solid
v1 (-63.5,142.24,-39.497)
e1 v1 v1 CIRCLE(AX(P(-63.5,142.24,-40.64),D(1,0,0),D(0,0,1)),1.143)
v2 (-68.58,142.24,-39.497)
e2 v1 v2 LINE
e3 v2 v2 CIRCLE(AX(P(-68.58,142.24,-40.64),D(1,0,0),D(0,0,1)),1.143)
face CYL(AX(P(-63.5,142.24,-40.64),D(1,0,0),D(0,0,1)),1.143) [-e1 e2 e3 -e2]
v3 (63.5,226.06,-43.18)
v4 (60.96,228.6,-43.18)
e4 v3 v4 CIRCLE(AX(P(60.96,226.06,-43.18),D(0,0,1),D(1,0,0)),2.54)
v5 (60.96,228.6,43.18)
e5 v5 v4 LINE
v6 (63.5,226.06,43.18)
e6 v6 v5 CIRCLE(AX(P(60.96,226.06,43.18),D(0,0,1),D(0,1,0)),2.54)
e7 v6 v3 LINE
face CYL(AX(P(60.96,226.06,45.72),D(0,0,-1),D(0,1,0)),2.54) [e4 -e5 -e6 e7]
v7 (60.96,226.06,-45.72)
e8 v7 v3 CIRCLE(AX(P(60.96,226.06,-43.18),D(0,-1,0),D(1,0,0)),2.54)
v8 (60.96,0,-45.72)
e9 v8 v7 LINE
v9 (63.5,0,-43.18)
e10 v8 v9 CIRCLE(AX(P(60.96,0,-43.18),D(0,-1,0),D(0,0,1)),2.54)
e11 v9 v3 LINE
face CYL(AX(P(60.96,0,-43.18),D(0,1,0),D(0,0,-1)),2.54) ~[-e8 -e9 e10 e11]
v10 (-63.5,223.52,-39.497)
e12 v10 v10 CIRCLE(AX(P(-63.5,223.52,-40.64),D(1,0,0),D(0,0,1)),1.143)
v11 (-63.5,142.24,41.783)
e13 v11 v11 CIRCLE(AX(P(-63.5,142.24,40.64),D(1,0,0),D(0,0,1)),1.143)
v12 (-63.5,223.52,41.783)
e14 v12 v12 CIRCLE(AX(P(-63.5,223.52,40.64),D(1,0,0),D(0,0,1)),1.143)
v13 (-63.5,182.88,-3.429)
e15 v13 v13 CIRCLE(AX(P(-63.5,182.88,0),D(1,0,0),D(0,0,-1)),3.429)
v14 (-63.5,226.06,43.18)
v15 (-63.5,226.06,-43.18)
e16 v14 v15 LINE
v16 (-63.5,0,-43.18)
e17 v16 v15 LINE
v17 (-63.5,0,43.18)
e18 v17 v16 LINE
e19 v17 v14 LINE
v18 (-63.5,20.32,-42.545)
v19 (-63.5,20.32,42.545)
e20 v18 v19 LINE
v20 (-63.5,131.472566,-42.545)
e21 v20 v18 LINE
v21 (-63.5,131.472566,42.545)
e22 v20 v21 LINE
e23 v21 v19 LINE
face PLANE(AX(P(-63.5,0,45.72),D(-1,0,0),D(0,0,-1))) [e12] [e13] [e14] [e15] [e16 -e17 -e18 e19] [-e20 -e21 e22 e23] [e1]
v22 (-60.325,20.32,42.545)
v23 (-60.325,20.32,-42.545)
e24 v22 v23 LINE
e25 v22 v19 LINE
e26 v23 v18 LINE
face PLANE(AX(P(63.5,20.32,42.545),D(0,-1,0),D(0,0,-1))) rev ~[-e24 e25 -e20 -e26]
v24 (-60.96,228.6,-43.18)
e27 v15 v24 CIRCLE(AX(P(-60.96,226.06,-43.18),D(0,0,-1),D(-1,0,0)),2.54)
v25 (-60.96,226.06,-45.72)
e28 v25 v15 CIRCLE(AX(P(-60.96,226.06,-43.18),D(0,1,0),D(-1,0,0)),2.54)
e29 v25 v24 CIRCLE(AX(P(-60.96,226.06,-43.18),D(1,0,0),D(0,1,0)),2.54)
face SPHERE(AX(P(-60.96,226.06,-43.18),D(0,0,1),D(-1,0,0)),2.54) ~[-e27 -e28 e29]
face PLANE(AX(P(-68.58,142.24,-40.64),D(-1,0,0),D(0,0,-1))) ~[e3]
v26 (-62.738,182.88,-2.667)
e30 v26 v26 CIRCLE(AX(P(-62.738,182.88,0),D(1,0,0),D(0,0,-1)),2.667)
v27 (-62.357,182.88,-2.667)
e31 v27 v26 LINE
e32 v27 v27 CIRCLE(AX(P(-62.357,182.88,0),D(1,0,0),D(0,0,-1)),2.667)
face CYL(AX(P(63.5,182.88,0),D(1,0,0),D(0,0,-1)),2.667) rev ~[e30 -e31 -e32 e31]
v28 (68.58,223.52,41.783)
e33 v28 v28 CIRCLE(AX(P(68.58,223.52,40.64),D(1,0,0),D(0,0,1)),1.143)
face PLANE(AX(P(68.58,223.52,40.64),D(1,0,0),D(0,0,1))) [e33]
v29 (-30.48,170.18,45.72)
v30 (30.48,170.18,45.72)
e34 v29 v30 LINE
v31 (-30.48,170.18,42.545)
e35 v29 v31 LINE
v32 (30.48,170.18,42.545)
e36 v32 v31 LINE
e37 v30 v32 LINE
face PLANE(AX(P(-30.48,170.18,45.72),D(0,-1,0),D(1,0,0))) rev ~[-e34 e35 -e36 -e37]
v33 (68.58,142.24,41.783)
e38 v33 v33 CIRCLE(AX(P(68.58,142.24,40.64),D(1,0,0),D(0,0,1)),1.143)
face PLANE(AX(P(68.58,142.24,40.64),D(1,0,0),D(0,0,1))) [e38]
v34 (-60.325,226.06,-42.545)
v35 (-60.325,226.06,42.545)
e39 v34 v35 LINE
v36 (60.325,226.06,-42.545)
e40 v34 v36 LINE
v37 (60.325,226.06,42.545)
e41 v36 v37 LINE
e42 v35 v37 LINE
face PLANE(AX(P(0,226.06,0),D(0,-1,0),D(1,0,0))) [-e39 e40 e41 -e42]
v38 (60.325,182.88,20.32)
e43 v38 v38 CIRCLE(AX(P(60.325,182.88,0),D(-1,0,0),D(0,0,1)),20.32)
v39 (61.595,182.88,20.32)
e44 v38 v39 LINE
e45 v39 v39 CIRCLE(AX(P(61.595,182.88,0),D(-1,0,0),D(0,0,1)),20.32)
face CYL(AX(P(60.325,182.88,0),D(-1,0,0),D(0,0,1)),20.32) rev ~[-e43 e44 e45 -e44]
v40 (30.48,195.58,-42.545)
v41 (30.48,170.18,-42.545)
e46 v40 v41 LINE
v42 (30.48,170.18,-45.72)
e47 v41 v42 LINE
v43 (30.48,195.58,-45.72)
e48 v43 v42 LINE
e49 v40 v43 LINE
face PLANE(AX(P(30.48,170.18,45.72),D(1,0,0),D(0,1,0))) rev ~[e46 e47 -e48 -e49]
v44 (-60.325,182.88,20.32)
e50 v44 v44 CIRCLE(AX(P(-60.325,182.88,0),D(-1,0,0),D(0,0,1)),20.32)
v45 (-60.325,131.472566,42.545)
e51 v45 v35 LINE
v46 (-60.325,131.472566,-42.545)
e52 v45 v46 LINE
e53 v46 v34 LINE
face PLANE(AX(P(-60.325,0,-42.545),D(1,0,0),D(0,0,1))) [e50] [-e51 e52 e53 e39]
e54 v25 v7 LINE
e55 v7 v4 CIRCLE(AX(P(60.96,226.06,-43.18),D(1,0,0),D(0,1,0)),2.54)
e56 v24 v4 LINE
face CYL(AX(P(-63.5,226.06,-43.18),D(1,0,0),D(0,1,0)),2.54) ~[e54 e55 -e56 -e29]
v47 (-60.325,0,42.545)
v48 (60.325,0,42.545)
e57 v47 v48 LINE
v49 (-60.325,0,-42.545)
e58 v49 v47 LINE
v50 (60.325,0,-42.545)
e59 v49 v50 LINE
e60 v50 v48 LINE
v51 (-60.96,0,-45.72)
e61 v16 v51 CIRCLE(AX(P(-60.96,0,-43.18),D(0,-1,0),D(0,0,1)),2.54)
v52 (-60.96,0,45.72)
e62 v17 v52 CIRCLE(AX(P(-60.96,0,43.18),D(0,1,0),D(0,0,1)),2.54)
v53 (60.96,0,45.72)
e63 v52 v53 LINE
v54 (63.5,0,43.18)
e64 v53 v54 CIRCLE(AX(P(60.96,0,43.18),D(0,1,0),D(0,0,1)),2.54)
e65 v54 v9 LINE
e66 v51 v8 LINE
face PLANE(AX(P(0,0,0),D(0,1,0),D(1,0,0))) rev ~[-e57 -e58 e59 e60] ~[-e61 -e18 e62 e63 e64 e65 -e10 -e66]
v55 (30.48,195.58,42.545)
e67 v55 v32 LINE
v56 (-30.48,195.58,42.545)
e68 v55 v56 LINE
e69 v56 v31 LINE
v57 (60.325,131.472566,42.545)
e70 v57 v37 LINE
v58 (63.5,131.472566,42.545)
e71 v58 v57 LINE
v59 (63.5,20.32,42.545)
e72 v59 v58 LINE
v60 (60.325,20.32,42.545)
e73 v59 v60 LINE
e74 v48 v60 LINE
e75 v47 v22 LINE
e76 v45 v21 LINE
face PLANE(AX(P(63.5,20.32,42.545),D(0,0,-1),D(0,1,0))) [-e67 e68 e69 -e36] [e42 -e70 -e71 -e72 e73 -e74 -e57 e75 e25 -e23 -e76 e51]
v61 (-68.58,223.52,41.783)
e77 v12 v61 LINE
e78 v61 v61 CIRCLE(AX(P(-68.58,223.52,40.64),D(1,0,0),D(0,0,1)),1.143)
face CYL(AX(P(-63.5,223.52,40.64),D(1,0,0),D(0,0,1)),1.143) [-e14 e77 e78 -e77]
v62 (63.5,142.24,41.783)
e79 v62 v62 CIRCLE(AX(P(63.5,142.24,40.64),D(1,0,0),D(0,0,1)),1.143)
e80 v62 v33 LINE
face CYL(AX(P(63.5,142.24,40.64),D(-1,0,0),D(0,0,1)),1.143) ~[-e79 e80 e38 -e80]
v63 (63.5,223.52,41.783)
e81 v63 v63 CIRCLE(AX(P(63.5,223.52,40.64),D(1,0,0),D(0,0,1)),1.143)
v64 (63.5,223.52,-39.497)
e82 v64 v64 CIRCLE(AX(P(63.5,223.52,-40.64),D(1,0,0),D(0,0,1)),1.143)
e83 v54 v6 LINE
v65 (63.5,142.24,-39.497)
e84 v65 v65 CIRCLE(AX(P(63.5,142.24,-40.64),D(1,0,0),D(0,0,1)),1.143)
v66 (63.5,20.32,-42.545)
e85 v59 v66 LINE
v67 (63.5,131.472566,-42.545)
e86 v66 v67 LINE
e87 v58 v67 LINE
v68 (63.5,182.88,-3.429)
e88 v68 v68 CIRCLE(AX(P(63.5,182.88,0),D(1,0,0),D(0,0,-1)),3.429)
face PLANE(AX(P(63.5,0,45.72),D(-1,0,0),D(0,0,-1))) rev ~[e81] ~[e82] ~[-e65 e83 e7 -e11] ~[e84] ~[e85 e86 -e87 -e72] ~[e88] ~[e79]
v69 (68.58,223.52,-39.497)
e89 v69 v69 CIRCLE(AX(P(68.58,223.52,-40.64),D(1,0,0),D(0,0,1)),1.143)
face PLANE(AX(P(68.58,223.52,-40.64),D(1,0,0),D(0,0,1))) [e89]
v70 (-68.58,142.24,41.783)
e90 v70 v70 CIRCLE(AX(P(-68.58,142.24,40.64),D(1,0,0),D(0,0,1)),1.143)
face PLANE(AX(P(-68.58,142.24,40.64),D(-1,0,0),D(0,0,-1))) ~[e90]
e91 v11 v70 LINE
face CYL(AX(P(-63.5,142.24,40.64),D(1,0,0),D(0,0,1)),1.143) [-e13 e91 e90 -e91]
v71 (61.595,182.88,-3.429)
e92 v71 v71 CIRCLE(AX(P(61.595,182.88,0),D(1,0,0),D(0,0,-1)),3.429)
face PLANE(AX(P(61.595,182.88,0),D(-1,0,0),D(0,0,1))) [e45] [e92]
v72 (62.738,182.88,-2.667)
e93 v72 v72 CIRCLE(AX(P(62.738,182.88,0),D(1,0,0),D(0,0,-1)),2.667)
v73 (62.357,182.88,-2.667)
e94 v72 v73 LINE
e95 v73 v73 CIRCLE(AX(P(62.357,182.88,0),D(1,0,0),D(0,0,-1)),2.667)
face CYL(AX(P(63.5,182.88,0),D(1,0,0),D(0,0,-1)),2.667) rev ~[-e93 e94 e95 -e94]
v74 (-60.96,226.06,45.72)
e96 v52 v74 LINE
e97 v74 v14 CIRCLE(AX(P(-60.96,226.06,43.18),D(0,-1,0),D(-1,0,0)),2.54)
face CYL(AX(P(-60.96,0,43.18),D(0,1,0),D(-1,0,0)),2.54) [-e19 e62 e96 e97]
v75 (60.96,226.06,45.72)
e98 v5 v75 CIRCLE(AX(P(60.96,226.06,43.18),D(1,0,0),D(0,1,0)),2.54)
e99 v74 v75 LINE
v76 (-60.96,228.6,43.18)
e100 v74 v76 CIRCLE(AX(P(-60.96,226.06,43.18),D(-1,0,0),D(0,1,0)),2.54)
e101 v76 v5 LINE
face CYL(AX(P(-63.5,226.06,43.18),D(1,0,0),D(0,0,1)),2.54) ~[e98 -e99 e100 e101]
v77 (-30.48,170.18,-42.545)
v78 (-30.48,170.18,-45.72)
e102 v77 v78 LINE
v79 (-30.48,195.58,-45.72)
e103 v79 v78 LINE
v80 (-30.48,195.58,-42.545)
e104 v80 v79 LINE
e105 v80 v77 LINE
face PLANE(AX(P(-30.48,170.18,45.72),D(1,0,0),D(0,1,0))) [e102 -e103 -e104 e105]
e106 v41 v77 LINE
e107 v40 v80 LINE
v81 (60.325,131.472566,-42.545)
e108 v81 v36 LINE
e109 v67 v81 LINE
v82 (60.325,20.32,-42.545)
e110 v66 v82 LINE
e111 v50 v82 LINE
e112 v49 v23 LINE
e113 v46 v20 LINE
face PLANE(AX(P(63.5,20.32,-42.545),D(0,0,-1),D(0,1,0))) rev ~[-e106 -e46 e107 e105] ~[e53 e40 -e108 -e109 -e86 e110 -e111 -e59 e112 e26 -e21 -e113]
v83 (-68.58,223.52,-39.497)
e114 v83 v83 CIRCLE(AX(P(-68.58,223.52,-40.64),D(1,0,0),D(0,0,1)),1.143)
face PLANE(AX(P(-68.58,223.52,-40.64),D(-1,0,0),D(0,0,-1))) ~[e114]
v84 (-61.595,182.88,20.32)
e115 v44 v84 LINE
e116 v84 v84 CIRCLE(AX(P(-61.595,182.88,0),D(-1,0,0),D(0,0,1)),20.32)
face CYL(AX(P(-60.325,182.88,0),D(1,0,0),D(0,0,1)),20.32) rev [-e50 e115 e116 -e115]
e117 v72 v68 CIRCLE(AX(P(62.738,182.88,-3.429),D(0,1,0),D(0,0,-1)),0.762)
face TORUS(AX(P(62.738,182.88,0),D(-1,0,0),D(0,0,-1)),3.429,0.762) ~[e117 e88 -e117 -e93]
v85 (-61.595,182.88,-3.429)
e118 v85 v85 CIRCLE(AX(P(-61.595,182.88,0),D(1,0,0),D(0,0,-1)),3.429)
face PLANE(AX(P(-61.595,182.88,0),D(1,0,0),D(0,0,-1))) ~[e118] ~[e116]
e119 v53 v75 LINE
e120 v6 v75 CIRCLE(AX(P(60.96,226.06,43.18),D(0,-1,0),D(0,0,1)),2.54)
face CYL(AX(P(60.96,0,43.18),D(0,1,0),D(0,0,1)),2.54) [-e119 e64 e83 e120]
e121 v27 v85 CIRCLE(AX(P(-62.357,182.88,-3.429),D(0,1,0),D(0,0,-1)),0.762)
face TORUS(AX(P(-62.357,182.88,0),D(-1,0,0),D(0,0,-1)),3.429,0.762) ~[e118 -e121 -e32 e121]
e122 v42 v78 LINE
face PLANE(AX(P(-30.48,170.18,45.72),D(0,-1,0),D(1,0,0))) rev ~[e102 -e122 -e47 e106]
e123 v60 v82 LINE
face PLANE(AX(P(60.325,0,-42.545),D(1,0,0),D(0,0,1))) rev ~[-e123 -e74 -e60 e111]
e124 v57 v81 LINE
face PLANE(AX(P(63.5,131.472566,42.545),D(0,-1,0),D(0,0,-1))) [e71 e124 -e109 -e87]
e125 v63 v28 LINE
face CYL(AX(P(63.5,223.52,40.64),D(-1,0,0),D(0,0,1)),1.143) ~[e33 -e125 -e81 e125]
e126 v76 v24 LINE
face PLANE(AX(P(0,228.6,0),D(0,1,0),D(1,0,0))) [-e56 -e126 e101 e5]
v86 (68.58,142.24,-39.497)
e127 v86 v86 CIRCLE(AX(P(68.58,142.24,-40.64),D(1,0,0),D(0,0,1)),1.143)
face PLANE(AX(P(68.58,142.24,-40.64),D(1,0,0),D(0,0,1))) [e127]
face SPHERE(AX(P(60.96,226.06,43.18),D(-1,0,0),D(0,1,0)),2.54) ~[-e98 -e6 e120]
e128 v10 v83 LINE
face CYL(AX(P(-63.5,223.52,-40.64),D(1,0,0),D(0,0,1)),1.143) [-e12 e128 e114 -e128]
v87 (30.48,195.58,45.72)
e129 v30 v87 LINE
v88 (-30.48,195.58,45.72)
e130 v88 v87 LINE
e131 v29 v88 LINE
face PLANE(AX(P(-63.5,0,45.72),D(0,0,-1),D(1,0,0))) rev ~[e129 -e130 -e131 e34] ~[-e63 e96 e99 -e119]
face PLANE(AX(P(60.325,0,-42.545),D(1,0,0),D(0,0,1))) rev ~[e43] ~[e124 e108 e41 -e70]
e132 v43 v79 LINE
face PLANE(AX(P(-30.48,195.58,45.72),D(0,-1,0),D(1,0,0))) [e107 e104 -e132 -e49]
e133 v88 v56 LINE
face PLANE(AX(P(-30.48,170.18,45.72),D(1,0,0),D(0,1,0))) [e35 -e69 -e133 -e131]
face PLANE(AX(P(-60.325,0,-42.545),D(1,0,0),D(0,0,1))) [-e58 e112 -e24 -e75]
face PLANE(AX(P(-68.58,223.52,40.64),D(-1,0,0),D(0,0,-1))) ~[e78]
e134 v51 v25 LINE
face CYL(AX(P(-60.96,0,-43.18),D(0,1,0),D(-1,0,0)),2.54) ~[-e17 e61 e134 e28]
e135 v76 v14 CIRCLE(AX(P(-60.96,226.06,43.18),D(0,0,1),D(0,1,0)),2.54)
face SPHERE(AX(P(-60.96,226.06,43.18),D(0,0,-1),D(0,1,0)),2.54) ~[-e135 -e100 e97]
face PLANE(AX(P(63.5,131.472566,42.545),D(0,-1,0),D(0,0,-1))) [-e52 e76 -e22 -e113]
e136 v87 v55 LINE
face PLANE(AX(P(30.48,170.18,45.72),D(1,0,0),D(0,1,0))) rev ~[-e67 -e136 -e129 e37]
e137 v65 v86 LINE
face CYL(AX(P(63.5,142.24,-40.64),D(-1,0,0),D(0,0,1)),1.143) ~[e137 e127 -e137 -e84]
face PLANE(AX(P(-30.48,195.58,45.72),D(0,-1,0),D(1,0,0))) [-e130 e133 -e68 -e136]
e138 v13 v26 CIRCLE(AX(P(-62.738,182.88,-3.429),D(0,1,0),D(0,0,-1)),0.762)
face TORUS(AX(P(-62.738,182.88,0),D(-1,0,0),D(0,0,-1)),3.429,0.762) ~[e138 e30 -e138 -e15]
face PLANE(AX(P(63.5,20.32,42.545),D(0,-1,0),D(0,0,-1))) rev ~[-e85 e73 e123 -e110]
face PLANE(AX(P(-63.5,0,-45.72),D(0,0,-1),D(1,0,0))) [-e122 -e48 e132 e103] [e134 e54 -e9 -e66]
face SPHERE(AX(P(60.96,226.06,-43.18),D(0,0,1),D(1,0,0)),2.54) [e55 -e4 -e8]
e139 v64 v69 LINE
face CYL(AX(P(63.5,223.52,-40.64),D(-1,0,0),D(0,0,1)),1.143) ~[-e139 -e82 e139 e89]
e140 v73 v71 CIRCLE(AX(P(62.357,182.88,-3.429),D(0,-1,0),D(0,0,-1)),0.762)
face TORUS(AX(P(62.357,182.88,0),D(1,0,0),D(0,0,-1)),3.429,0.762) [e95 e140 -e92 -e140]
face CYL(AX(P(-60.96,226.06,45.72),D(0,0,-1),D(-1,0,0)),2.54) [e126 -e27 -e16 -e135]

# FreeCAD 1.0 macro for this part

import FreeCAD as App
import Part
import Sketcher
from FreeCAD import Vector
Q = App.Units.Quantity


def edges_at(feature, points):
    """Names of the edges that pass closest to the given points."""
    edges = feature.Shape.Edges
    near = lambda p: min(range(len(edges)), key=lambda i: edges[i].distToShape(Part.Vertex(*p))[0])
    return sorted({f"Edge{near(p) + 1}" for p in points})

doc = App.newDocument("Part")
body = doc.addObject("PartDesign::Body", "Body")

sketch1 = doc.addObject("Sketcher::SketchObject", "Sketch")
body.addObject(sketch1)
sketch1.AttachmentSupport = (doc.XZ_Plane, [""])
sketch1.MapMode = "FlatFace"
sketch1.addGeometry([
    Part.LineSegment(Vector(-64, -46, 0), Vector(-64, 46, 0)),
    Part.LineSegment(Vector(-64, 46, 0), Vector(64, 46, 0)),
    Part.LineSegment(Vector(64, 46, 0), Vector(64, -46, 0)),
    Part.LineSegment(Vector(64, -46, 0), Vector(-64, -46, 0)),
], False)
sketch1.addConstraint([
    Sketcher.Constraint("Coincident", 0, 2, 1, 1),
    Sketcher.Constraint("Coincident", 1, 2, 2, 1),
    Sketcher.Constraint("Coincident", 2, 2, 3, 1),
    Sketcher.Constraint("Coincident", 3, 2, 0, 1),
    Sketcher.Constraint("Vertical", 0),
    Sketcher.Constraint("Horizontal", 1),
    Sketcher.Constraint("Vertical", 2),
    Sketcher.Constraint("Horizontal", 3),
    Sketcher.Constraint("Symmetric", 0, 2, 2, 2, -1, 1),
    Sketcher.Constraint("DistanceX", 1, 1, 1, 2, Q("5 in")),
    Sketcher.Constraint("DistanceY", 0, 1, 0, 2, Q("3.6 in")),
])
pad1 = doc.addObject("PartDesign::Pad", "Pad")
body.addObject(pad1)
pad1.Profile = sketch1
pad1.Length = Q("9 in")
pad1.Reversed = True

sketch2 = doc.addObject("Sketcher::SketchObject", "Sketch001")
body.addObject(sketch2)
sketch2.AttachmentSupport = (doc.XZ_Plane, [""])
sketch2.MapMode = "FlatFace"
sketch2.addGeometry([
    Part.LineSegment(Vector(-60, 43, 0), Vector(-60, -43, 0)),
    Part.LineSegment(Vector(-60, -43, 0), Vector(60, -43, 0)),
    Part.LineSegment(Vector(60, -43, 0), Vector(60, 43, 0)),
    Part.LineSegment(Vector(60, 43, 0), Vector(-60, 43, 0)),
], False)
sketch2.addConstraint([
    Sketcher.Constraint("Coincident", 0, 2, 1, 1),
    Sketcher.Constraint("Coincident", 1, 2, 2, 1),
    Sketcher.Constraint("Coincident", 2, 2, 3, 1),
    Sketcher.Constraint("Coincident", 3, 2, 0, 1),
    Sketcher.Constraint("Vertical", 0),
    Sketcher.Constraint("Horizontal", 1),
    Sketcher.Constraint("Vertical", 2),
    Sketcher.Constraint("Horizontal", 3),
    Sketcher.Constraint("Symmetric", 0, 2, 2, 2, -1, 1),
    Sketcher.Constraint("DistanceX", 1, 1, 1, 2, Q("4.75 in")),
    Sketcher.Constraint("DistanceY", 0, 2, 0, 1, Q("3.35 in")),
])
pocket1 = doc.addObject("PartDesign::Pocket", "Pocket")
body.addObject(pocket1)
pocket1.Profile = sketch2
pocket1.Length = Q("8.9 in")

sketch3 = doc.addObject("Sketcher::SketchObject", "Sketch002")
body.addObject(sketch3)
sketch3.AttachmentSupport = (doc.YZ_Plane, [""])
sketch3.MapMode = "FlatFace"
sketch3.AttachmentOffset = App.Placement(Vector(0, 0, 2.5 * 25.4), App.Rotation())
sketch3.addGeometry(Part.Circle(Vector(182.9, 0, 0), Vector(0, 0, 1), 2.7), False)
sketch3.addConstraint([
    Sketcher.Constraint("PointOnObject", 0, 3, -1),
    Sketcher.Constraint("Diameter", 0, Q("0.21 in")),
    Sketcher.Constraint("DistanceX", -1, 1, 0, 3, Q("7.2 in")),
])
pocket2 = doc.addObject("PartDesign::Pocket", "Pocket001")
body.addObject(pocket2)
pocket2.Profile = sketch3
pocket2.Type = "ThroughAll"

sketch4 = doc.addObject("Sketcher::SketchObject", "Sketch003")
body.addObject(sketch4)
sketch4.AttachmentSupport = (doc.YZ_Plane, [""])
sketch4.MapMode = "FlatFace"
sketch4.AttachmentOffset = App.Placement(Vector(0, 0, 2.5 * 25.4), App.Rotation())
sketch4.addGeometry([
    Part.Circle(Vector(223.5, 40.6, 0), Vector(0, 0, 1), 1.1),
    Part.Circle(Vector(223.5, -40.6, 0), Vector(0, 0, 1), 1.1),
    Part.Circle(Vector(142.2, -40.6, 0), Vector(0, 0, 1), 1.1),
    Part.Circle(Vector(142.2, 40.6, 0), Vector(0, 0, 1), 1.1),
], False)
sketch4.addConstraint([
    Sketcher.Constraint("Equal", 0, 1),
    Sketcher.Constraint("Equal", 1, 2),
    Sketcher.Constraint("Equal", 2, 3),
    Sketcher.Constraint("Symmetric", 0, 3, 1, 3, -1),
    Sketcher.Constraint("Symmetric", 2, 3, 3, 3, -1),
    Sketcher.Constraint("Horizontal", 1, 3, 2, 3),
    Sketcher.Constraint("Diameter", 0, Q("0.09 in")),
    Sketcher.Constraint("DistanceX", -1, 1, 0, 3, Q("8.8 in")),
    Sketcher.Constraint("DistanceY", -1, 1, 0, 3, Q("1.6 in")),
    Sketcher.Constraint("DistanceX", -1, 1, 2, 3, Q("5.6 in")),
])
pad2 = doc.addObject("PartDesign::Pad", "Pad001")
body.addObject(pad2)
pad2.Profile = sketch4
pad2.Length = Q("0.2 in")

sketch5 = doc.addObject("Sketcher::SketchObject", "Sketch004")
body.addObject(sketch5)
sketch5.AttachmentSupport = (doc.YZ_Plane, [""])
sketch5.MapMode = "FlatFace"
sketch5.AttachmentOffset = App.Placement(Vector(0, 0, 2.375 * 25.4), App.Rotation())
sketch5.addGeometry(Part.Circle(Vector(183, 0, 0), Vector(0, 0, 1), 20), False)
sketch5.addConstraint([
    Sketcher.Constraint("PointOnObject", 0, 3, -1),
    Sketcher.Constraint("Diameter", 0, Q("1.6 in")),
    Sketcher.Constraint("DistanceX", -1, 1, 0, 3, Q("7.2 in")),
])
pocket3 = doc.addObject("PartDesign::Pocket", "Pocket002")
body.addObject(pocket3)
pocket3.Profile = sketch5
pocket3.Length = Q("0.05 in")
pocket3.Reversed = True
doc.recompute()

fillet = doc.addObject("PartDesign::Fillet", "Fillet")
body.addObject(fillet)
fillet.Base = (pocket3, edges_at(pocket3, [(61.595, 182.88, 2.667)]))
fillet.Radius = Q("0.03 in")
doc.recompute()

fillet2 = doc.addObject("PartDesign::Fillet", "Fillet001")
body.addObject(fillet2)
fillet2.Base = (fillet, edges_at(fillet, [(63.5, 182.88, 2.667)]))
fillet2.Radius = Q("0.03 in")
doc.recompute()

mirrored = doc.addObject("PartDesign::Mirrored", "Mirrored")
body.addObject(mirrored)
mirrored.Originals = [pad2, pocket3]
mirrored.MirrorPlane = (doc.YZ_Plane, [""])
body.Tip = mirrored
doc.recompute()

fillet3 = doc.addObject("PartDesign::Fillet", "Fillet002")
body.addObject(fillet3)
fillet3.Base = (mirrored, edges_at(mirrored, [(-63.5, 182.88, 2.667), (-61.595, 182.88, 2.667)]))
fillet3.Radius = Q("0.03 in")

sketch6 = doc.addObject("Sketcher::SketchObject", "Sketch005")
body.addObject(sketch6)
sketch6.AttachmentSupport = (doc.XY_Plane, [""])
sketch6.MapMode = "FlatFace"
sketch6.AttachmentOffset = App.Placement(Vector(0, 0, 1.8 * 25.4), App.Rotation())
sketch6.addGeometry([
    Part.LineSegment(Vector(-30, 196, 0), Vector(-30, 170, 0)),
    Part.LineSegment(Vector(-30, 170, 0), Vector(30, 170, 0)),
    Part.LineSegment(Vector(30, 170, 0), Vector(30, 196, 0)),
    Part.LineSegment(Vector(30, 196, 0), Vector(-30, 196, 0)),
], False)
sketch6.addConstraint([
    Sketcher.Constraint("Coincident", 0, 2, 1, 1),
    Sketcher.Constraint("Coincident", 1, 2, 2, 1),
    Sketcher.Constraint("Coincident", 2, 2, 3, 1),
    Sketcher.Constraint("Coincident", 3, 2, 0, 1),
    Sketcher.Constraint("Vertical", 0),
    Sketcher.Constraint("Horizontal", 1),
    Sketcher.Constraint("Vertical", 2),
    Sketcher.Constraint("Horizontal", 3),
    Sketcher.Constraint("DistanceY", 0, 2, 0, 1, Q("1 in")),
    Sketcher.Constraint("DistanceX", 1, 1, 1, 2, Q("2.4 in")),
    Sketcher.Constraint("DistanceX", 0, 2, -1, 1, Q("1.2 in")),
    Sketcher.Constraint("DistanceY", -1, 1, 0, 2, Q("6.7 in")),
])
pocket4 = doc.addObject("PartDesign::Pocket", "Pocket003")
body.addObject(pocket4)
pocket4.Profile = sketch6
pocket4.Type = "ThroughAll"
doc.recompute()

fillet4 = doc.addObject("PartDesign::Fillet", "Fillet003")
body.addObject(fillet4)
fillet4.Base = (pocket4, edges_at(pocket4, [
    (-63.5, 228.6, 0),
    (0, 228.6, 45.72),
    (63.5, 228.6, 0),
    (63.5, 114.3, 45.72),
    (-63.5, 114.3, 45.72),
    (-63.5, 114.3, -45.72),
    (63.5, 114.3, -45.72),
    (0, 228.6, -45.72),
]))
fillet4.Radius = Q("0.1 in")

sketch7 = doc.addObject("Sketcher::SketchObject", "Sketch006")
body.addObject(sketch7)
sketch7.AttachmentSupport = (doc.YZ_Plane, [""])
sketch7.MapMode = "FlatFace"
sketch7.AttachmentOffset = App.Placement(Vector(0, 0, 2.5 * 25.4), App.Rotation())
sketch7.addGeometry([
    Part.LineSegment(Vector(131, 43, 0), Vector(20, 43, 0)),
    Part.LineSegment(Vector(20, 43, 0), Vector(20, -43, 0)),
    Part.LineSegment(Vector(20, -43, 0), Vector(131, -43, 0)),
    Part.LineSegment(Vector(131, -43, 0), Vector(131, 43, 0)),
], False)
sketch7.addConstraint([
    Sketcher.Constraint("Coincident", 0, 2, 1, 1),
    Sketcher.Constraint("Coincident", 1, 2, 2, 1),
    Sketcher.Constraint("Coincident", 2, 2, 3, 1),
    Sketcher.Constraint("Coincident", 3, 2, 0, 1),
    Sketcher.Constraint("Horizontal", 0),
    Sketcher.Constraint("Vertical", 1),
    Sketcher.Constraint("Horizontal", 2),
    Sketcher.Constraint("Vertical", 3),
    Sketcher.Constraint("DistanceY", 1, 2, 1, 1, Q("3.35 in")),
    Sketcher.Constraint("DistanceX", -1, 1, 0, 2, Q("0.8 in")),
    Sketcher.Constraint("DistanceY", -1, 1, 0, 2, Q("1.675 in")),
    Sketcher.Constraint("DistanceX", 0, 2, 0, 1, Q("111.152566 mm")),
])
pocket5 = doc.addObject("PartDesign::Pocket", "Pocket004")
body.addObject(pocket5)
pocket5.Profile = sketch7
pocket5.Type = "ThroughAll"

doc.recompute()
